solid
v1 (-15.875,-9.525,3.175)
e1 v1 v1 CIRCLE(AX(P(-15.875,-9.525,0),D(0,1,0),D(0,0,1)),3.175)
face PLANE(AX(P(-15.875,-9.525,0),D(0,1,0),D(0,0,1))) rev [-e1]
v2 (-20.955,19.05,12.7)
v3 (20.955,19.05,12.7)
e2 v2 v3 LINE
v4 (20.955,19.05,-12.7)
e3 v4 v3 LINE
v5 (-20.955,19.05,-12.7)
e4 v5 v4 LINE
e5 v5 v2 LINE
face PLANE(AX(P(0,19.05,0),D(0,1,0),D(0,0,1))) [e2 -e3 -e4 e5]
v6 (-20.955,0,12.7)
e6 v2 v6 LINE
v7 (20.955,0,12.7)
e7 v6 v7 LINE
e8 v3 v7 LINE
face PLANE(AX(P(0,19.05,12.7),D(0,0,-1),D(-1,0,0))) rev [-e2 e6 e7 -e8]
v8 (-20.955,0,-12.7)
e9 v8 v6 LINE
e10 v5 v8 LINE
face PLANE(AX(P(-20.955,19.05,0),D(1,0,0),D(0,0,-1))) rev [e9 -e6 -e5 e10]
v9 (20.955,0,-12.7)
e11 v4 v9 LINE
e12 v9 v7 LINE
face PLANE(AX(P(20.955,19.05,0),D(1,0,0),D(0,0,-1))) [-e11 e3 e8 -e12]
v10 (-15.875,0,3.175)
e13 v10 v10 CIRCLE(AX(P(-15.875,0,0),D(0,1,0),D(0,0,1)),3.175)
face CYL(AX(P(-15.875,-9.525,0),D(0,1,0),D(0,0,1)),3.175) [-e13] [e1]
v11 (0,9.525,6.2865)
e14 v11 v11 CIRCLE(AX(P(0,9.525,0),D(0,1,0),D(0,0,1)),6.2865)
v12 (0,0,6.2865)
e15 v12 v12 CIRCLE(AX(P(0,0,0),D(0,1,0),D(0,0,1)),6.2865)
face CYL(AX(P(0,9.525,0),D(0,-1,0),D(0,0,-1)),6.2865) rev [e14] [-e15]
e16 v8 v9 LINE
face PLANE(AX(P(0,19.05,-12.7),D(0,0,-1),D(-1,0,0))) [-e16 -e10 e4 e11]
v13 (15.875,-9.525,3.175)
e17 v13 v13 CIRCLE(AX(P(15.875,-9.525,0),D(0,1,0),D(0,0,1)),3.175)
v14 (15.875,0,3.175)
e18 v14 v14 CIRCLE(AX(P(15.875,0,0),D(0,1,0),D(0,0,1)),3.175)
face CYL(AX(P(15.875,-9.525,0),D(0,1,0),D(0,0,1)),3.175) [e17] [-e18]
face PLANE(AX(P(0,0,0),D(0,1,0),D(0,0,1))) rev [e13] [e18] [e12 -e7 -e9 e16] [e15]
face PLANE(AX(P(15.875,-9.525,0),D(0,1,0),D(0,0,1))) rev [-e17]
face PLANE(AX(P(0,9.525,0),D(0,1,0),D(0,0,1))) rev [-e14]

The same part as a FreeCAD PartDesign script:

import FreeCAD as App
import Part
import Sketcher

V = App.Vector
Q = App.Units.Quantity


def add_polygon(sketch, points):
    """Adds a closed chain of lines whose ends are joined by coincident constraints."""
    first, n = sketch.GeometryCount, len(points)
    for a, b in zip(points, points[1:] + points[:1]):
        sketch.addGeometry(Part.LineSegment(App.Vector(*a, 0), App.Vector(*b, 0)), False)
    for i in range(n):
        sketch.addConstraint(Sketcher.Constraint("Coincident", first + i, 2, first + (i + 1) % n, 1))

doc = App.newDocument("Part")
params = doc.addObject("Spreadsheet::Sheet", "Params")
for row, (alias, value) in enumerate([
    ("sketch1_height", "1 in"),
    ("sketch1_width", "1.65 in"),
    ("pad1_length", "0.75 in"),
    ("sketch2_diameter", "0.495 in"),
    ("pocket1_length", "0.375 in"),
    ("sketch3_diameter", "0.25 in"),
    ("pad2_length", "0.375 in"),
], start=1):
    params.set(f"A{row}", alias)
    params.set(f"B{row}", "=" + value)
    params.setAlias(f"B{row}", alias)

body = doc.addObject("PartDesign::Body", "Body")

# Sketch on XZ plane
sketch1 = doc.addObject("Sketcher::SketchObject", "Sketch")
body.addObject(sketch1)
sketch1.AttachmentSupport = (doc.XZ_Plane, [""])
sketch1.MapMode = "FlatFace"
add_polygon(sketch1, [(-20.955, -12.7), (-20.955, 12.7), (20.955, 12.7), (20.955, -12.7)])  # lines 0-3
sketch1.addConstraint(Sketcher.Constraint("Vertical", 0))
sketch1.addConstraint(Sketcher.Constraint("Horizontal", 1))
sketch1.addConstraint(Sketcher.Constraint("Vertical", 2))
sketch1.addConstraint(Sketcher.Constraint("Horizontal", 3))
sketch1.addConstraint(Sketcher.Constraint("Symmetric", 0, 2, 2, 2, -1, 1))
sketch1.addConstraint(Sketcher.Constraint("DistanceY", 0, 1, 0, 2, Q("1 in")))
sketch1.addConstraint(Sketcher.Constraint("DistanceX", 1, 1, 1, 2, Q("1.65 in")))
sketch1.setExpression("Constraints[9]", "Params.sketch1_height")
sketch1.setExpression("Constraints[10]", "Params.sketch1_width")
pad1 = doc.addObject("PartDesign::Pad", "Pad")
body.addObject(pad1)
pad1.Profile = sketch1
pad1.setExpression("Length", "Params.pad1_length")
pad1.Reversed = True

# Sketch on XZ plane
sketch2 = doc.addObject("Sketcher::SketchObject", "Sketch001")
body.addObject(sketch2)
sketch2.AttachmentSupport = (doc.XZ_Plane, [""])
sketch2.MapMode = "FlatFace"
sketch2.addGeometry(Part.Circle(V(0, 0, 0), V(0, 0, 1), 6.2865), False)
sketch2.addConstraint(Sketcher.Constraint("Coincident", 0, 3, -1, 1))
sketch2.addConstraint(Sketcher.Constraint("Diameter", 0, Q("0.495 in")))
sketch2.setExpression("Constraints[1]", "Params.sketch2_diameter")
pocket1 = doc.addObject("PartDesign::Pocket", "Pocket")
body.addObject(pocket1)
pocket1.Profile = sketch2
pocket1.setExpression("Length", "Params.pocket1_length")

# Sketch on XZ plane
sketch3 = doc.addObject("Sketcher::SketchObject", "Sketch002")
body.addObject(sketch3)
sketch3.AttachmentSupport = (doc.XZ_Plane, [""])
sketch3.MapMode = "FlatFace"
sketch3.addGeometry(Part.Circle(V(-15.875, 0, 0), V(0, 0, 1), 3.175), False)
sketch3.addGeometry(Part.Circle(V(15.875, 0, 0), V(0, 0, 1), 3.175), False)
sketch3.addConstraint(Sketcher.Constraint("Equal", 0, 1))
sketch3.addConstraint(Sketcher.Constraint("Symmetric", 0, 3, 1, 3, -1, 1))
sketch3.addConstraint(Sketcher.Constraint("PointOnObject", 0, 3, -1))
sketch3.addConstraint(Sketcher.Constraint("Diameter", 0, Q("0.25 in")))
sketch3.addConstraint(Sketcher.Constraint("DistanceX", 0, 3, 1, 3, Q("1.25 in")))
sketch3.setExpression("Constraints[3]", "Params.sketch3_diameter")
pad2 = doc.addObject("PartDesign::Pad", "Pad001")
body.addObject(pad2)
pad2.Profile = sketch3
pad2.setExpression("Length", "Params.pad2_length")

doc.recompute()
